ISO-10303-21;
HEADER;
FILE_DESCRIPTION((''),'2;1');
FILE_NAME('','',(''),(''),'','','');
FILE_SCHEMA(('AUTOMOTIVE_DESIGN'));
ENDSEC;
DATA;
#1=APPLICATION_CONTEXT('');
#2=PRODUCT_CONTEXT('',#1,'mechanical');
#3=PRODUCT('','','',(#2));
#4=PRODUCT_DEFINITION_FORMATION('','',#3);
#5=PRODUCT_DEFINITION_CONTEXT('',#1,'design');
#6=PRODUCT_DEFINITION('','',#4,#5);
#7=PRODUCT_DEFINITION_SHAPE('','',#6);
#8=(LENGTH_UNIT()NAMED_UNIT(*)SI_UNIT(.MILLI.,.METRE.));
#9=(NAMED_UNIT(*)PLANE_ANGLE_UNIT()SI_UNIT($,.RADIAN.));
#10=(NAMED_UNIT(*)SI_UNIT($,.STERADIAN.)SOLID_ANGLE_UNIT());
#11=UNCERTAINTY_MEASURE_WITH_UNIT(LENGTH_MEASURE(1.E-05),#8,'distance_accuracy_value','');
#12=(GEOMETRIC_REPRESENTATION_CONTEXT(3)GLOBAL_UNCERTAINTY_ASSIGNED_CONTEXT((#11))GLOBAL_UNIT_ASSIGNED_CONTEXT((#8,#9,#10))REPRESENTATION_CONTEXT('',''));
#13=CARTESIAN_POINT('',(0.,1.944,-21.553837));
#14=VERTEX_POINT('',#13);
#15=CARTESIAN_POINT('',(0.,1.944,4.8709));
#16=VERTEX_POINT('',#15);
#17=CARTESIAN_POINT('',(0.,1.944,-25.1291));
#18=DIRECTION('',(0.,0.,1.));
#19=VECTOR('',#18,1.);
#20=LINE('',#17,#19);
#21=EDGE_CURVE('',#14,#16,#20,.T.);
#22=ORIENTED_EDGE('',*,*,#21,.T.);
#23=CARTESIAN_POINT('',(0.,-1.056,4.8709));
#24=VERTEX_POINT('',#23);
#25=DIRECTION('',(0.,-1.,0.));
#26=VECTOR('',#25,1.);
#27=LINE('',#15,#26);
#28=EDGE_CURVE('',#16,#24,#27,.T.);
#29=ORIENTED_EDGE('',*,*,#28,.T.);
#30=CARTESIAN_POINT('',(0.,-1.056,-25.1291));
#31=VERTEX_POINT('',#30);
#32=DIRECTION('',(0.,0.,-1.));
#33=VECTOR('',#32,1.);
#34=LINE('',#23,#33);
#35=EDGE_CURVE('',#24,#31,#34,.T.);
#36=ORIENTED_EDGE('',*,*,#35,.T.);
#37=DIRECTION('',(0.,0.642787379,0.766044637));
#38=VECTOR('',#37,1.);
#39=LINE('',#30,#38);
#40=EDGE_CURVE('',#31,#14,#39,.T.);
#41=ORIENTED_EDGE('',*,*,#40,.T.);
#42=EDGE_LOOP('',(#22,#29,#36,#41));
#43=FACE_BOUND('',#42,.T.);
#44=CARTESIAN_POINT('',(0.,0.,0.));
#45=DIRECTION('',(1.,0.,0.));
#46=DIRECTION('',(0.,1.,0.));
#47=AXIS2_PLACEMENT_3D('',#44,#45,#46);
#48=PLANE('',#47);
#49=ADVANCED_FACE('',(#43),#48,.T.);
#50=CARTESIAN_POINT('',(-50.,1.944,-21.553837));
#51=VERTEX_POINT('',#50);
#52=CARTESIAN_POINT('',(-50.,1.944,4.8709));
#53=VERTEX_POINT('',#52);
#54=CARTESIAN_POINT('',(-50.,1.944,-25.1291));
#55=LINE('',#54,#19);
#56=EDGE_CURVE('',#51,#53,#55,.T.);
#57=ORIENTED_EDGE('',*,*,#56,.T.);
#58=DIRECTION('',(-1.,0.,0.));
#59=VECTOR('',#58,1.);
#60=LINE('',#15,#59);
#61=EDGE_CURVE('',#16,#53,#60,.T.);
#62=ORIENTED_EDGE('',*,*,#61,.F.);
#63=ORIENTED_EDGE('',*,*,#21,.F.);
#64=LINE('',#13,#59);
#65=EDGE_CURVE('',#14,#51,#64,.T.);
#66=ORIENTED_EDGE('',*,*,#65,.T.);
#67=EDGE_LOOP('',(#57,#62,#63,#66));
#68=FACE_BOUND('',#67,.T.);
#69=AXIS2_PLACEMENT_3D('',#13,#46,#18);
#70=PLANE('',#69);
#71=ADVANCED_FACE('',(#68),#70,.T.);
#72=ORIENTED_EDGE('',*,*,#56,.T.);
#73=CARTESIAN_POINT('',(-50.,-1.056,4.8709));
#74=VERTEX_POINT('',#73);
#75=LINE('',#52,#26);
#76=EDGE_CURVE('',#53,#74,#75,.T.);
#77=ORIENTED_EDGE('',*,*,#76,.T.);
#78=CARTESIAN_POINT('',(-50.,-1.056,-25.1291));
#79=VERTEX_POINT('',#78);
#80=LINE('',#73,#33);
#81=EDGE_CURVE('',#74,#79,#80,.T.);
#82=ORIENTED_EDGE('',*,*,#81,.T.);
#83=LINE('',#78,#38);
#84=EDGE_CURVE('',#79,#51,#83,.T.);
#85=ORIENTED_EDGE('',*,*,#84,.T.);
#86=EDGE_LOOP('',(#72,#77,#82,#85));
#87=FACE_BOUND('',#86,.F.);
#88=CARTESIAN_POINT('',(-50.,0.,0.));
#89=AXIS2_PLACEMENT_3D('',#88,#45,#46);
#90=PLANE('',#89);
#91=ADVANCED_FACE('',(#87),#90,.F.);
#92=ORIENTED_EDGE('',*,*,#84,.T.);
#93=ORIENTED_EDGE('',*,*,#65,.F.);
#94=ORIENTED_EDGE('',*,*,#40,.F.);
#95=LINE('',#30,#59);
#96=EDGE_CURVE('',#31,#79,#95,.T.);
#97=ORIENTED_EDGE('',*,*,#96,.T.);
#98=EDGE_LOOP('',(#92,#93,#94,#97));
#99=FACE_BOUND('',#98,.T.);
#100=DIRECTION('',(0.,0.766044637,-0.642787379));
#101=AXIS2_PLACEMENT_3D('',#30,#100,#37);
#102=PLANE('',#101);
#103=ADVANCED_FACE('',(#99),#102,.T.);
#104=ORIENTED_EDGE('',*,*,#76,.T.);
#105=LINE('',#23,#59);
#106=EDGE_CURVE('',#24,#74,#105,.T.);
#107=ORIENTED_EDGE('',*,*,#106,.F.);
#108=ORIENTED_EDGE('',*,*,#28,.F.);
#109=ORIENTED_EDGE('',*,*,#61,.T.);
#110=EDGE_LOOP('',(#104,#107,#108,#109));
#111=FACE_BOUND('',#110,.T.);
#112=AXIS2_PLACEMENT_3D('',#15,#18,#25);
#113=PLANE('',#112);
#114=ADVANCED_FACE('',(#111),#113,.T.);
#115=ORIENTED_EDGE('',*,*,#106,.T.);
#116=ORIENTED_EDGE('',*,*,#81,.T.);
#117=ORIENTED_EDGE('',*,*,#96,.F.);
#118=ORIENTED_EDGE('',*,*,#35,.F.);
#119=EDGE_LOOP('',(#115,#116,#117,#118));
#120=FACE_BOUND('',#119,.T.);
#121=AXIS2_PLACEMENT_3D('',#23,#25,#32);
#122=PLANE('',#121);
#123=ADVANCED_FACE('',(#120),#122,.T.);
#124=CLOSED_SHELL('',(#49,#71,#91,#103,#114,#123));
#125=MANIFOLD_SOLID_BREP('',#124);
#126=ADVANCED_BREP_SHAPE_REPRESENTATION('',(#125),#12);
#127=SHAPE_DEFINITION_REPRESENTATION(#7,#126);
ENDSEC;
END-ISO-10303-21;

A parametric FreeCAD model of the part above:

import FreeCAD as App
import Part
import Sketcher

V = App.Vector
Q = App.Units.Quantity

doc = App.newDocument("Part")
params = doc.addObject("Spreadsheet::Sheet", "Params")
for row, (alias, value) in enumerate([
    ("sketch1_width", "3 mm"),
    ("sketch1_height", "30 mm"),
    ("pad1_length", "50 mm"),
], start=1):
    params.set(f"A{row}", alias)
    params.set(f"B{row}", "=" + value)
    params.setAlias(f"B{row}", alias)

body = doc.addObject("PartDesign::Body", "Body")

# Sketch on YZ plane
sketch1 = body.newObject("Sketcher::SketchObject", "Sketch")
sketch1.AttachmentSupport = (doc.getObject("YZ_Plane"), [""])
sketch1.MapMode = "FlatFace"
sketch1.addGeometry(Part.LineSegment(V(1.9, -21.6, 0), V(1.9, 4.9, 0)), False)
sketch1.addGeometry(Part.LineSegment(V(1.9, 4.9, 0), V(-1.1, 4.9, 0)), False)
sketch1.addGeometry(Part.LineSegment(V(-1.1, 4.9, 0), V(-1.1, -25.1, 0)), False)
sketch1.addGeometry(Part.LineSegment(V(-1.1, -25.1, 0), V(1.9, -21.6, 0)), False)
sketch1.addConstraint(Sketcher.Constraint("Coincident", 0, 2, 1, 1))
sketch1.addConstraint(Sketcher.Constraint("Coincident", 1, 2, 2, 1))
sketch1.addConstraint(Sketcher.Constraint("Coincident", 2, 2, 3, 1))
sketch1.addConstraint(Sketcher.Constraint("Coincident", 3, 2, 0, 1))
sketch1.addConstraint(Sketcher.Constraint("Vertical", 0))
sketch1.addConstraint(Sketcher.Constraint("Horizontal", 1))
sketch1.addConstraint(Sketcher.Constraint("Vertical", 2))
sketch1.addConstraint(Sketcher.Constraint("DistanceX", 1, 2, 1, 1, Q("3 mm")))
sketch1.addConstraint(Sketcher.Constraint("DistanceY", 2, 2, 2, 1, Q("30 mm")))
sketch1.addConstraint(Sketcher.Constraint("Angle", 3, Q("50 deg")))
sketch1.addConstraint(Sketcher.Constraint("DistanceX", -1, 1, 0, 2, Q("1.944 mm")))
sketch1.addConstraint(Sketcher.Constraint("DistanceY", -1, 1, 0, 2, Q("4.871 mm")))
sketch1.setExpression("Constraints[7]", "Params.sketch1_width")
sketch1.setExpression("Constraints[8]", "Params.sketch1_height")
pad1 = body.newObject("PartDesign::Pad", "Pad")
pad1.Profile = sketch1
pad1.setExpression("Length", "Params.pad1_length")
pad1.Reversed = True

doc.recompute()
